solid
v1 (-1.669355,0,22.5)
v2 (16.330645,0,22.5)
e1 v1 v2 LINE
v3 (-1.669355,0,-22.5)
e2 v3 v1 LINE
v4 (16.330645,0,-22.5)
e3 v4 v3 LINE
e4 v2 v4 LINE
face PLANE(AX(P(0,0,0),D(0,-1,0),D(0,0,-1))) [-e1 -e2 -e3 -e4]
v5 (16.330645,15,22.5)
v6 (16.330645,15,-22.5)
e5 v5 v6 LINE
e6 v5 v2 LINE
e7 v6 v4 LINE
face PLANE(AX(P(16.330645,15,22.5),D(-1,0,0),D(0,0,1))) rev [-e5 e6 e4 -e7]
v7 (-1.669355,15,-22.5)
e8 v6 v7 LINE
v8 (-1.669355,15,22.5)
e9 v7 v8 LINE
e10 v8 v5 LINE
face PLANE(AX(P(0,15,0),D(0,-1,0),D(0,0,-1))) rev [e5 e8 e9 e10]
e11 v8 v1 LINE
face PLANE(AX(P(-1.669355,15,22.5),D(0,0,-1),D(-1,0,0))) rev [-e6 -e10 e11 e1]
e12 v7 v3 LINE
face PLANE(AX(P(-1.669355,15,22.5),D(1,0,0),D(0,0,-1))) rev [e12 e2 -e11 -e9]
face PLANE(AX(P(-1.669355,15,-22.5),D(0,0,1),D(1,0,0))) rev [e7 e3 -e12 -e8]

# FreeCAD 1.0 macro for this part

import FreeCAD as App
import Part
import Sketcher


def add_polygon(sketch, points):
    """Adds a closed chain of lines whose ends are joined by coincident constraints."""
    first, n = sketch.GeometryCount, len(points)
    for a, b in zip(points, points[1:] + points[:1]):
        sketch.addGeometry(Part.LineSegment(App.Vector(*a, 0), App.Vector(*b, 0)), False)
    for i in range(n):
        sketch.addConstraint(Sketcher.Constraint("Coincident", first + i, 2, first + (i + 1) % n, 1))

doc = App.newDocument("Part")
body = doc.addObject("PartDesign::Body", "Body")

sketch1 = doc.addObject("Sketcher::SketchObject", "Sketch")
body.addObject(sketch1)
sketch1.AttachmentSupport = (doc.XZ_Plane, [""])
sketch1.MapMode = "FlatFace"
add_polygon(sketch1, [(-2, -22), (-2, 22), (16, 22), (16, -22)])
sketch1.addConstraint([
    Sketcher.Constraint("Vertical", 0),
    Sketcher.Constraint("Horizontal", 1),
    Sketcher.Constraint("Vertical", 2),
    Sketcher.Constraint("Horizontal", 3),
    Sketcher.Constraint("DistanceX", 1, 1, 1, 2, 18.0),
    Sketcher.Constraint("DistanceY", 0, 1, 0, 2, 45.0),
    Sketcher.Constraint("DistanceY", -1, 1, 0, 2, 22.5),
    Sketcher.Constraint("DistanceX", 0, 2, -1, 1, 1.669355),
])
pad1 = doc.addObject("PartDesign::Pad", "Pad")
body.addObject(pad1)
pad1.Profile = sketch1
pad1.Length = 15
pad1.Reversed = True

doc.recompute()
